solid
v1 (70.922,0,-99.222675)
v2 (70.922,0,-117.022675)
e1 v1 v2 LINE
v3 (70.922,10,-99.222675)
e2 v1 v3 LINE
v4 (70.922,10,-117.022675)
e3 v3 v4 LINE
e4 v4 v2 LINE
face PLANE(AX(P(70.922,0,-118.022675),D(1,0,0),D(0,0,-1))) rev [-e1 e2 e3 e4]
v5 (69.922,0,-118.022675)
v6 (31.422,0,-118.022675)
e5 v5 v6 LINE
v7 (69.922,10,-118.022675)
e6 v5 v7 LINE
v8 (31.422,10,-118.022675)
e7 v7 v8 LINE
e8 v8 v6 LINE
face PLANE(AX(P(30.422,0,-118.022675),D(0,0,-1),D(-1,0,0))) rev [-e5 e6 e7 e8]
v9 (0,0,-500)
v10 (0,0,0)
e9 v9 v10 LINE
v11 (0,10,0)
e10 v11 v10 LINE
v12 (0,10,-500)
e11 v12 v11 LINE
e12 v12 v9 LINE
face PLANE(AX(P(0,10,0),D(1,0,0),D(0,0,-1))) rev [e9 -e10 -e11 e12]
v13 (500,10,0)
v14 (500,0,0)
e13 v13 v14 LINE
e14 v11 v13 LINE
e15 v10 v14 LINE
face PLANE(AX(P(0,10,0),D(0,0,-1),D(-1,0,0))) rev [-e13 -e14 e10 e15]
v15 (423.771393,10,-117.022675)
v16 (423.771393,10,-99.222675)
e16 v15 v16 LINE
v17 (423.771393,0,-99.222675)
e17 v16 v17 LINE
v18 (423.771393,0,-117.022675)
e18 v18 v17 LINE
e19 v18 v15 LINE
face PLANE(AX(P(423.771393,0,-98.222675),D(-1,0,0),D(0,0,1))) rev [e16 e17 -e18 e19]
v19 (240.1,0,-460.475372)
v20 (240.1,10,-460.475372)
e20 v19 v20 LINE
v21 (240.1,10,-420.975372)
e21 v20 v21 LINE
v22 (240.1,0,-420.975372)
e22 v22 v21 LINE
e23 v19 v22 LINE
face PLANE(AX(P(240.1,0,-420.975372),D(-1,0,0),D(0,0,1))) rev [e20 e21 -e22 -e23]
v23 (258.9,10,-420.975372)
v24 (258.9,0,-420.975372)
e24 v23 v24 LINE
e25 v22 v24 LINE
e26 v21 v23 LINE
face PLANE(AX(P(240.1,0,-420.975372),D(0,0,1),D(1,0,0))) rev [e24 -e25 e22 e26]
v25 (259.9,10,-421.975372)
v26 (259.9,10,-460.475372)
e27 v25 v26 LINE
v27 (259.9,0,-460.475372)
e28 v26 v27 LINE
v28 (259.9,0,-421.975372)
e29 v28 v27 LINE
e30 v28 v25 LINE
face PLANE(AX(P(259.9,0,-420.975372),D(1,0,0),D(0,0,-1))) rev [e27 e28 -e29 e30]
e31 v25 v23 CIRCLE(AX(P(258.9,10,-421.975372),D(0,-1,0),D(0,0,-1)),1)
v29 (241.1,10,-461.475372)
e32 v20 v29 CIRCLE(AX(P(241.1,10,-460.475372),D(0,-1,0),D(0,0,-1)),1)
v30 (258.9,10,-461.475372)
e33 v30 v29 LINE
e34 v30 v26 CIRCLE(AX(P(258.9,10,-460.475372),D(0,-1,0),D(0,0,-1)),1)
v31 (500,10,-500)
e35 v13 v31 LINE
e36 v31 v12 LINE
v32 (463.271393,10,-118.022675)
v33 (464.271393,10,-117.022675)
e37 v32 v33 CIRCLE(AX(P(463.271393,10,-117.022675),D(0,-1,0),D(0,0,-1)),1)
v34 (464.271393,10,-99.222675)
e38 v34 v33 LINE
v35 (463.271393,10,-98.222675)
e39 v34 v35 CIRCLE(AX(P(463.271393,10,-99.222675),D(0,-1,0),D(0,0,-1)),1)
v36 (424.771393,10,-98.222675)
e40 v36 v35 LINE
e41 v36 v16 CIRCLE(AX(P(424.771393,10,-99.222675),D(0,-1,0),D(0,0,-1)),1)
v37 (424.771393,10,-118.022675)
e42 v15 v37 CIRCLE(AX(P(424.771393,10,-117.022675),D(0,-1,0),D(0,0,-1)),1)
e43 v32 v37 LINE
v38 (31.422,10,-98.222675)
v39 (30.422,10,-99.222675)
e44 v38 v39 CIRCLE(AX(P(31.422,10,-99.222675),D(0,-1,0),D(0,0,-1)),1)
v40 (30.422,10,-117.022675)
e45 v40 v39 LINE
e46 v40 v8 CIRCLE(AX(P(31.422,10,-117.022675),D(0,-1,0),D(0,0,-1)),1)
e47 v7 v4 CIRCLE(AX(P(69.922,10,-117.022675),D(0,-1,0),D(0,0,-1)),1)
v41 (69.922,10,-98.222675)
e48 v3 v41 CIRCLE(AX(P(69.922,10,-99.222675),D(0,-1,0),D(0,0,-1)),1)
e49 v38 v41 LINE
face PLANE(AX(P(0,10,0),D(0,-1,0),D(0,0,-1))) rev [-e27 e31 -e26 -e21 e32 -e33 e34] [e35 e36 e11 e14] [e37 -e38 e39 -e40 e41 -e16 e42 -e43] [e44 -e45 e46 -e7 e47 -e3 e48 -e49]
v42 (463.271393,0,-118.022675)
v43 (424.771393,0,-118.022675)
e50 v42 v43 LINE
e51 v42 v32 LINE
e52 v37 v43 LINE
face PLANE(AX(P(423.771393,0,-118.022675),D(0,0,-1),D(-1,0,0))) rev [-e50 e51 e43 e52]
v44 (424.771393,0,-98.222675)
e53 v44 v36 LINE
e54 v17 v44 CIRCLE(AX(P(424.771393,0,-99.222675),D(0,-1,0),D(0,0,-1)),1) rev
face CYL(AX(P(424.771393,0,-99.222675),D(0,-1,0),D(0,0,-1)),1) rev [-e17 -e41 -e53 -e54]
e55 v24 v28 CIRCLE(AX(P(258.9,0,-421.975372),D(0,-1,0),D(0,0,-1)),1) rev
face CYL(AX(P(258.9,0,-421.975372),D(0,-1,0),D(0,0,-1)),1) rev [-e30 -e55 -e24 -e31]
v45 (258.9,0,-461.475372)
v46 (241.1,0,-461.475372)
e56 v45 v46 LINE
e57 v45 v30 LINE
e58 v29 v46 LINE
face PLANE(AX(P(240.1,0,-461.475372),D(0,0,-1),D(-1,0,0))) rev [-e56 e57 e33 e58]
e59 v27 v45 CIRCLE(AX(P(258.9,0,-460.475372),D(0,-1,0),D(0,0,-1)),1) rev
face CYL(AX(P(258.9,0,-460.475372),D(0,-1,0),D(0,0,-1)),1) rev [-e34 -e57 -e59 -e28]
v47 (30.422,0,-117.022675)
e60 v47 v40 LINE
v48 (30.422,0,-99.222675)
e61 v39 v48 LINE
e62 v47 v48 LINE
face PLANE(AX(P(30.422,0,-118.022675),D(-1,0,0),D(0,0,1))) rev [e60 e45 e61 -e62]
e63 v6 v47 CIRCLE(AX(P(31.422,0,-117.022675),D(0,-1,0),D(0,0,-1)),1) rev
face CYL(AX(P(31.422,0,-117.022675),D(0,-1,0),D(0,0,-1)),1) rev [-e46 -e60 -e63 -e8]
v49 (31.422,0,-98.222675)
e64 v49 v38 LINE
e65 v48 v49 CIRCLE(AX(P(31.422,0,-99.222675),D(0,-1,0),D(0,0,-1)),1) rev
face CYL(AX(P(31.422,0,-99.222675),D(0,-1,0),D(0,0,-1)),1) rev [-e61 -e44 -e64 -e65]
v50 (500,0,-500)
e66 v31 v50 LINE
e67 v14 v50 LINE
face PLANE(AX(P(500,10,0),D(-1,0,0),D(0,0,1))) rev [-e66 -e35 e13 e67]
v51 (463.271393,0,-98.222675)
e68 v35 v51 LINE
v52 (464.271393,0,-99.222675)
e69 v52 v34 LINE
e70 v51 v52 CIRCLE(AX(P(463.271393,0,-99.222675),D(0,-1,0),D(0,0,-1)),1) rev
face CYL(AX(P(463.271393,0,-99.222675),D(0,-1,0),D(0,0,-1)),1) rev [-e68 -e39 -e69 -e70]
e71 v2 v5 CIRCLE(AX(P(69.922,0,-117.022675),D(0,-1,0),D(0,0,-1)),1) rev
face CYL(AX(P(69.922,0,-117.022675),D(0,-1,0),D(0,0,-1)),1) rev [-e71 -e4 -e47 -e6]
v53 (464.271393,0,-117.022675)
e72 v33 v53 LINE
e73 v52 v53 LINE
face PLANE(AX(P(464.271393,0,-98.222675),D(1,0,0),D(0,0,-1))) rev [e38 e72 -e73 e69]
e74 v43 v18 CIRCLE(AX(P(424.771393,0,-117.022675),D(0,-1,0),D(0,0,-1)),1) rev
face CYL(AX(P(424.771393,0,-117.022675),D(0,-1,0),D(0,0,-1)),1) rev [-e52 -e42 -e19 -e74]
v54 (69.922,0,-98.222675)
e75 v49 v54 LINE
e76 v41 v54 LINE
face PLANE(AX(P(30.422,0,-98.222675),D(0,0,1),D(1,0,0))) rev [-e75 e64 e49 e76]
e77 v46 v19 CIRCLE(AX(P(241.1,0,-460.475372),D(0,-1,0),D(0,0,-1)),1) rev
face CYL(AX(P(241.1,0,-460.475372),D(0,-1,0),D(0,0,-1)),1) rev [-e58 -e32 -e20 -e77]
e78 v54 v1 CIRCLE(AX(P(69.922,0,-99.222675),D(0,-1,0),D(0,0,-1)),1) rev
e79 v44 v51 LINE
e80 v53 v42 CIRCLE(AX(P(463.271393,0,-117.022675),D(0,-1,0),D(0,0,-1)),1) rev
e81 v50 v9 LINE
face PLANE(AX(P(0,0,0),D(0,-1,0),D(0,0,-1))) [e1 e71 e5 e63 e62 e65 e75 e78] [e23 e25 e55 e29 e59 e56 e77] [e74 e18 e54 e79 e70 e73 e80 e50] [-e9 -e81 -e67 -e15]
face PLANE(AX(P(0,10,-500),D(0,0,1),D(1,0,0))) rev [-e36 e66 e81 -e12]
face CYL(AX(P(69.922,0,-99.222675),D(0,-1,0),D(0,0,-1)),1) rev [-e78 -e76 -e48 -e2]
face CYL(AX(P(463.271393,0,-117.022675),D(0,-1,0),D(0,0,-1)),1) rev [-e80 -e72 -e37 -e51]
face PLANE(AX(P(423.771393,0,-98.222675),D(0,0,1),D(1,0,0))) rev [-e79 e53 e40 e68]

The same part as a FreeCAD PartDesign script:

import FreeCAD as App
import Part
import Sketcher
Q = App.Units.Quantity


def edges_at(feature, points):
    """Names of the edges that pass closest to the given points."""
    edges = feature.Shape.Edges
    near = lambda p: min(range(len(edges)), key=lambda i: edges[i].distToShape(Part.Vertex(*p))[0])
    return sorted({f"Edge{near(p) + 1}" for p in points})


def add_polygon(sketch, points):
    """Adds a closed chain of lines whose ends are joined by coincident constraints."""
    first, n = sketch.GeometryCount, len(points)
    for a, b in zip(points, points[1:] + points[:1]):
        sketch.addGeometry(Part.LineSegment(App.Vector(*a, 0), App.Vector(*b, 0)), False)
    for i in range(n):
        sketch.addConstraint(Sketcher.Constraint("Coincident", first + i, 2, first + (i + 1) % n, 1))

doc = App.newDocument("Part")
params = doc.addObject("Spreadsheet::Sheet", "Params")
for row, (alias, value) in enumerate([
    ("sketch1_width", "500 mm"),
    ("pad1_length", "10 mm"),
    ("sketch2_width", "40.5 mm"),
    ("sketch2_width2", "19.8 mm"),
    ("pocket1_length", "10 mm"),
    ("fillet_radius", "1 mm"),
], start=1):
    params.set(f"A{row}", alias)
    params.set(f"B{row}", "=" + value)
    params.setAlias(f"B{row}", alias)

body = doc.addObject("PartDesign::Body", "Body")

sketch1 = body.newObject("Sketcher::SketchObject", "Sketch")
sketch1.AttachmentSupport = (doc.getObject("XZ_Plane"), [""])
sketch1.MapMode = "FlatFace"
add_polygon(sketch1, [(0, -500), (0, 0), (500, 0), (500, -500)])
sketch1.addConstraint([
    Sketcher.Constraint("Vertical", 0),
    Sketcher.Constraint("Horizontal", 1),
    Sketcher.Constraint("Vertical", 2),
    Sketcher.Constraint("Horizontal", 3),
    Sketcher.Constraint("Coincident", 0, 2, -1, 1),
    Sketcher.Constraint("Equal", 3, 0),
    Sketcher.Constraint("DistanceX", 1, 1, 1, 2, Q("500 mm")),
])
sketch1.setExpression("Constraints[10]", "Params.sketch1_width")
pad1 = body.newObject("PartDesign::Pad", "Pad")
pad1.Profile = sketch1
pad1.setExpression("Length", "Params.pad1_length")
pad1.Reversed = True

sketch2 = body.newObject("Sketcher::SketchObject", "Sketch001")
sketch2.AttachmentSupport = (doc.getObject("XZ_Plane"), [""])
sketch2.MapMode = "FlatFace"
sketch2.AttachmentOffset = App.Placement(App.Vector(0, 0, -10), App.Rotation())
add_polygon(sketch2, [(30, -118), (30, -98), (71, -98), (71, -118)])
add_polygon(sketch2, [(424, -118), (424, -98), (464, -98), (464, -118)])
add_polygon(sketch2, [(240, -461), (240, -421), (260, -421), (260, -461)])
sketch2.addConstraint([
    Sketcher.Constraint("Vertical", 0),
    Sketcher.Constraint("Horizontal", 1),
    Sketcher.Constraint("Vertical", 2),
    Sketcher.Constraint("Horizontal", 3),
    Sketcher.Constraint("Vertical", 4),
    Sketcher.Constraint("Horizontal", 5),
    Sketcher.Constraint("Vertical", 6),
    Sketcher.Constraint("Horizontal", 7),
    Sketcher.Constraint("Vertical", 8),
    Sketcher.Constraint("Horizontal", 9),
    Sketcher.Constraint("Vertical", 10),
    Sketcher.Constraint("Horizontal", 11),
    Sketcher.Constraint("Horizontal", 1, 2, 4, 2),
    Sketcher.Constraint("Horizontal", 3, 2, 6, 2),
    Sketcher.Constraint("Equal", 3, 5),
    Sketcher.Constraint("Equal", 11, 0),
    Sketcher.Constraint("Equal", 7, 8),
    Sketcher.Constraint("DistanceX", 1, 1, 1, 2, Q("40.5 mm")),
    Sketcher.Constraint("DistanceX", 9, 1, 9, 2, Q("19.8 mm")),
    Sketcher.Constraint("DistanceX", -1, 1, 8, 2, Q("240.1 mm")),
    Sketcher.Constraint("DistanceX", -1, 1, 0, 2, Q("30.422 mm")),
    Sketcher.Constraint("DistanceY", 0, 2, -1, 1, Q("98.222675 mm")),
    Sketcher.Constraint("DistanceX", -1, 1, 4, 2, Q("423.771393 mm")),
    Sketcher.Constraint("DistanceY", 8, 2, -1, 1, Q("420.975372 mm")),
])
sketch2.setExpression("Constraints[29]", "Params.sketch2_width")
sketch2.setExpression("Constraints[30]", "Params.sketch2_width2")
pocket1 = body.newObject("PartDesign::Pocket", "Pocket")
pocket1.Profile = sketch2
pocket1.setExpression("Length", "Params.pocket1_length")
pocket1.Reversed = True
doc.recompute()

fillet = body.newObject("PartDesign::Fillet", "Fillet")
fillet.Base = (pocket1, edges_at(pocket1, [
    (30.422, 5, -98.223),
    (30.422, 5, -118.023),
    (70.922, 5, -118.023),
    (70.922, 5, -98.223),
    (423.771, 5, -98.223),
    (423.771, 5, -118.023),
    (464.271, 5, -118.023),
    (464.271, 5, -98.223),
    (240.1, 5, -461.475),
    (259.9, 5, -461.475),
    (259.9, 5, -420.975),
]))
fillet.setExpression("Radius", "Params.fillet_radius")

doc.recompute()
